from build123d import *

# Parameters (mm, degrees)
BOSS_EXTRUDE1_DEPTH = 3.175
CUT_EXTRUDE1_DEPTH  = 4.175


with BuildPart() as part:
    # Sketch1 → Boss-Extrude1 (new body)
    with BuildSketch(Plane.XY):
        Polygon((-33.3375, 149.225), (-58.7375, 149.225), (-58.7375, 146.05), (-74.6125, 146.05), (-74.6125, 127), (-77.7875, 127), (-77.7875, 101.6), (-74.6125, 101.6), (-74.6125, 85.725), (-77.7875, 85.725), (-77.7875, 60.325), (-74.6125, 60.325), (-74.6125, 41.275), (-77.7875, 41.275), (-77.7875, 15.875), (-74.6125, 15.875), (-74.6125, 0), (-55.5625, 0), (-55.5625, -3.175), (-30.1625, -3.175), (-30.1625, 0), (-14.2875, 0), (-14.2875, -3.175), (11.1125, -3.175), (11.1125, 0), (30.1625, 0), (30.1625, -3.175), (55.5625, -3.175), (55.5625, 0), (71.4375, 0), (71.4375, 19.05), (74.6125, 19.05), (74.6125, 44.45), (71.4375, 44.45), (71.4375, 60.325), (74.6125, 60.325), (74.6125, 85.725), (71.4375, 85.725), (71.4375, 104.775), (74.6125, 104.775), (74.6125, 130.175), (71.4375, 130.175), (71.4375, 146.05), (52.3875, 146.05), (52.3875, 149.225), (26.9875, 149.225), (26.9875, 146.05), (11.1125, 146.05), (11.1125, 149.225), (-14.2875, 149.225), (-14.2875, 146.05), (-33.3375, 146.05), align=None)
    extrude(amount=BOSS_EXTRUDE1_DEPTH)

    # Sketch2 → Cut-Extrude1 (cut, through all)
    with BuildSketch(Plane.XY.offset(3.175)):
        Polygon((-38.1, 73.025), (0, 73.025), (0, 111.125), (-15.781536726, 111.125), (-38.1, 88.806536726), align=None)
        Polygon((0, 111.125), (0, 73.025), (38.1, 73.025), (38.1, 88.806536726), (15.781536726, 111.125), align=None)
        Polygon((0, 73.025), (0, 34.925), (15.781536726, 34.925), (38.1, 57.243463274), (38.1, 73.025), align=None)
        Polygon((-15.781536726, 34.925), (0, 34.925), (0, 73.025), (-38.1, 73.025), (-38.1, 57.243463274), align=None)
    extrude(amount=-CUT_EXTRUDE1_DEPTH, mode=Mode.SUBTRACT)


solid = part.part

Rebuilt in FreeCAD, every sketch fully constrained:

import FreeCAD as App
import Part
import Sketcher

V = App.Vector
Q = App.Units.Quantity

doc = App.newDocument("Part")
body = doc.addObject("PartDesign::Body", "Body")

# Sketch on XY plane
sketch1 = body.newObject("Sketcher::SketchObject", "Sketch")
sketch1.AttachmentSupport = (doc.getObject("XY_Plane"), [""])
sketch1.MapMode = "FlatFace"
sketch1.addGeometry(Part.LineSegment(V(-33.3, 149.2, 0), V(-58.7, 149.2, 0)), False)
sketch1.addGeometry(Part.LineSegment(V(-58.7, 149.2, 0), V(-58.7, 146.1, 0)), False)
sketch1.addGeometry(Part.LineSegment(V(-58.7, 146.1, 0), V(-74.6, 146.1, 0)), False)
sketch1.addGeometry(Part.LineSegment(V(-74.6, 146.1, 0), V(-74.6, 127, 0)), False)
sketch1.addGeometry(Part.LineSegment(V(-74.6, 127, 0), V(-77.8, 127, 0)), False)
sketch1.addGeometry(Part.LineSegment(V(-77.8, 127, 0), V(-77.8, 101.6, 0)), False)
sketch1.addGeometry(Part.LineSegment(V(-77.8, 101.6, 0), V(-74.6, 101.6, 0)), False)
sketch1.addGeometry(Part.LineSegment(V(-74.6, 101.6, 0), V(-74.6, 85.7, 0)), False)
sketch1.addGeometry(Part.LineSegment(V(-74.6, 85.7, 0), V(-77.8, 85.7, 0)), False)
sketch1.addGeometry(Part.LineSegment(V(-77.8, 85.7, 0), V(-77.8, 60.3, 0)), False)
sketch1.addGeometry(Part.LineSegment(V(-77.8, 60.3, 0), V(-74.6, 60.3, 0)), False)
sketch1.addGeometry(Part.LineSegment(V(-74.6, 60.3, 0), V(-74.6, 41.3, 0)), False)
sketch1.addGeometry(Part.LineSegment(V(-74.6, 41.3, 0), V(-77.8, 41.3, 0)), False)
sketch1.addGeometry(Part.LineSegment(V(-77.8, 41.3, 0), V(-77.8, 15.9, 0)), False)
sketch1.addGeometry(Part.LineSegment(V(-77.8, 15.9, 0), V(-74.6, 15.9, 0)), False)
sketch1.addGeometry(Part.LineSegment(V(-74.6, 15.9, 0), V(-74.6, 0, 0)), False)
sketch1.addGeometry(Part.LineSegment(V(-74.6, 0, 0), V(-55.6, 0, 0)), False)
sketch1.addGeometry(Part.LineSegment(V(-55.6, 0, 0), V(-55.6, -3.2, 0)), False)
sketch1.addGeometry(Part.LineSegment(V(-55.6, -3.2, 0), V(-30.2, -3.2, 0)), False)
sketch1.addGeometry(Part.LineSegment(V(-30.2, -3.2, 0), V(-30.2, 0, 0)), False)
sketch1.addGeometry(Part.LineSegment(V(-30.2, 0, 0), V(-14.3, 0, 0)), False)
sketch1.addGeometry(Part.LineSegment(V(-14.3, 0, 0), V(-14.3, -3.2, 0)), False)
sketch1.addGeometry(Part.LineSegment(V(-14.3, -3.2, 0), V(11.1, -3.2, 0)), False)
sketch1.addGeometry(Part.LineSegment(V(11.1, -3.2, 0), V(11.1, 0, 0)), False)
sketch1.addGeometry(Part.LineSegment(V(11.1, 0, 0), V(30.2, 0, 0)), False)
sketch1.addGeometry(Part.LineSegment(V(30.2, 0, 0), V(30.2, -3.2, 0)), False)
sketch1.addGeometry(Part.LineSegment(V(30.2, -3.2, 0), V(55.6, -3.2, 0)), False)
sketch1.addGeometry(Part.LineSegment(V(55.6, -3.2, 0), V(55.6, 0, 0)), False)
sketch1.addGeometry(Part.LineSegment(V(55.6, 0, 0), V(71.4, 0, 0)), False)
sketch1.addGeometry(Part.LineSegment(V(71.4, 0, 0), V(71.4, 19.1, 0)), False)
sketch1.addGeometry(Part.LineSegment(V(71.4, 19.1, 0), V(74.6, 19.1, 0)), False)
sketch1.addGeometry(Part.LineSegment(V(74.6, 19.1, 0), V(74.6, 44.5, 0)), False)
sketch1.addGeometry(Part.LineSegment(V(74.6, 44.5, 0), V(71.4, 44.5, 0)), False)
sketch1.addGeometry(Part.LineSegment(V(71.4, 44.5, 0), V(71.4, 60.3, 0)), False)
sketch1.addGeometry(Part.LineSegment(V(71.4, 60.3, 0), V(74.6, 60.3, 0)), False)
sketch1.addGeometry(Part.LineSegment(V(74.6, 60.3, 0), V(74.6, 85.7, 0)), False)
sketch1.addGeometry(Part.LineSegment(V(74.6, 85.7, 0), V(71.4, 85.7, 0)), False)
sketch1.addGeometry(Part.LineSegment(V(71.4, 85.7, 0), V(71.4, 104.8, 0)), False)
sketch1.addGeometry(Part.LineSegment(V(71.4, 104.8, 0), V(74.6, 104.8, 0)), False)
sketch1.addGeometry(Part.LineSegment(V(74.6, 104.8, 0), V(74.6, 130.2, 0)), False)
sketch1.addGeometry(Part.LineSegment(V(74.6, 130.2, 0), V(71.4, 130.2, 0)), False)
sketch1.addGeometry(Part.LineSegment(V(71.4, 130.2, 0), V(71.4, 146.1, 0)), False)
sketch1.addGeometry(Part.LineSegment(V(71.4, 146.1, 0), V(52.4, 146.1, 0)), False)
sketch1.addGeometry(Part.LineSegment(V(52.4, 146.1, 0), V(52.4, 149.2, 0)), False)
sketch1.addGeometry(Part.LineSegment(V(52.4, 149.2, 0), V(27, 149.2, 0)), False)
sketch1.addGeometry(Part.LineSegment(V(27, 149.2, 0), V(27, 146.1, 0)), False)
sketch1.addGeometry(Part.LineSegment(V(27, 146.1, 0), V(11.1, 146.1, 0)), False)
sketch1.addGeometry(Part.LineSegment(V(11.1, 146.1, 0), V(11.1, 149.2, 0)), False)
sketch1.addGeometry(Part.LineSegment(V(11.1, 149.2, 0), V(-14.3, 149.2, 0)), False)
sketch1.addGeometry(Part.LineSegment(V(-14.3, 149.2, 0), V(-14.3, 146.1, 0)), False)
sketch1.addGeometry(Part.LineSegment(V(-14.3, 146.1, 0), V(-33.3, 146.1, 0)), False)
sketch1.addGeometry(Part.LineSegment(V(-33.3, 146.1, 0), V(-33.3, 149.2, 0)), False)
sketch1.addConstraint(Sketcher.Constraint("Coincident", 0, 2, 1, 1))
sketch1.addConstraint(Sketcher.Constraint("Coincident", 1, 2, 2, 1))
sketch1.addConstraint(Sketcher.Constraint("Coincident", 2, 2, 3, 1))
sketch1.addConstraint(Sketcher.Constraint("Coincident", 3, 2, 4, 1))
sketch1.addConstraint(Sketcher.Constraint("Coincident", 4, 2, 5, 1))
sketch1.addConstraint(Sketcher.Constraint("Coincident", 5, 2, 6, 1))
sketch1.addConstraint(Sketcher.Constraint("Coincident", 6, 2, 7, 1))
sketch1.addConstraint(Sketcher.Constraint("Coincident", 7, 2, 8, 1))
sketch1.addConstraint(Sketcher.Constraint("Coincident", 8, 2, 9, 1))
sketch1.addConstraint(Sketcher.Constraint("Coincident", 9, 2, 10, 1))
sketch1.addConstraint(Sketcher.Constraint("Coincident", 10, 2, 11, 1))
sketch1.addConstraint(Sketcher.Constraint("Coincident", 11, 2, 12, 1))
sketch1.addConstraint(Sketcher.Constraint("Coincident", 12, 2, 13, 1))
sketch1.addConstraint(Sketcher.Constraint("Coincident", 13, 2, 14, 1))
sketch1.addConstraint(Sketcher.Constraint("Coincident", 14, 2, 15, 1))
sketch1.addConstraint(Sketcher.Constraint("Coincident", 15, 2, 16, 1))
sketch1.addConstraint(Sketcher.Constraint("Coincident", 16, 2, 17, 1))
sketch1.addConstraint(Sketcher.Constraint("Coincident", 17, 2, 18, 1))
sketch1.addConstraint(Sketcher.Constraint("Coincident", 18, 2, 19, 1))
sketch1.addConstraint(Sketcher.Constraint("Coincident", 19, 2, 20, 1))
sketch1.addConstraint(Sketcher.Constraint("Coincident", 20, 2, 21, 1))
sketch1.addConstraint(Sketcher.Constraint("Coincident", 21, 2, 22, 1))
sketch1.addConstraint(Sketcher.Constraint("Coincident", 22, 2, 23, 1))
sketch1.addConstraint(Sketcher.Constraint("Coincident", 23, 2, 24, 1))
sketch1.addConstraint(Sketcher.Constraint("Coincident", 24, 2, 25, 1))
sketch1.addConstraint(Sketcher.Constraint("Coincident", 25, 2, 26, 1))
sketch1.addConstraint(Sketcher.Constraint("Coincident", 26, 2, 27, 1))
sketch1.addConstraint(Sketcher.Constraint("Coincident", 27, 2, 28, 1))
sketch1.addConstraint(Sketcher.Constraint("Coincident", 28, 2, 29, 1))
sketch1.addConstraint(Sketcher.Constraint("Coincident", 29, 2, 30, 1))
sketch1.addConstraint(Sketcher.Constraint("Coincident", 30, 2, 31, 1))
sketch1.addConstraint(Sketcher.Constraint("Coincident", 31, 2, 32, 1))
sketch1.addConstraint(Sketcher.Constraint("Coincident", 32, 2, 33, 1))
sketch1.addConstraint(Sketcher.Constraint("Coincident", 33, 2, 34, 1))
sketch1.addConstraint(Sketcher.Constraint("Coincident", 34, 2, 35, 1))
sketch1.addConstraint(Sketcher.Constraint("Coincident", 35, 2, 36, 1))
sketch1.addConstraint(Sketcher.Constraint("Coincident", 36, 2, 37, 1))
sketch1.addConstraint(Sketcher.Constraint("Coincident", 37, 2, 38, 1))
sketch1.addConstraint(Sketcher.Constraint("Coincident", 38, 2, 39, 1))
sketch1.addConstraint(Sketcher.Constraint("Coincident", 39, 2, 40, 1))
sketch1.addConstraint(Sketcher.Constraint("Coincident", 40, 2, 41, 1))
sketch1.addConstraint(Sketcher.Constraint("Coincident", 41, 2, 42, 1))
sketch1.addConstraint(Sketcher.Constraint("Coincident", 42, 2, 43, 1))
sketch1.addConstraint(Sketcher.Constraint("Coincident", 43, 2, 44, 1))
sketch1.addConstraint(Sketcher.Constraint("Coincident", 44, 2, 45, 1))
sketch1.addConstraint(Sketcher.Constraint("Coincident", 45, 2, 46, 1))
sketch1.addConstraint(Sketcher.Constraint("Coincident", 46, 2, 47, 1))
sketch1.addConstraint(Sketcher.Constraint("Coincident", 47, 2, 48, 1))
sketch1.addConstraint(Sketcher.Constraint("Coincident", 48, 2, 49, 1))
sketch1.addConstraint(Sketcher.Constraint("Coincident", 49, 2, 50, 1))
sketch1.addConstraint(Sketcher.Constraint("Coincident", 50, 2, 51, 1))
sketch1.addConstraint(Sketcher.Constraint("Coincident", 51, 2, 0, 1))
sketch1.addConstraint(Sketcher.Constraint("Horizontal", 0))
sketch1.addConstraint(Sketcher.Constraint("Vertical", 1))
sketch1.addConstraint(Sketcher.Constraint("Horizontal", 2))
sketch1.addConstraint(Sketcher.Constraint("Vertical", 3))
sketch1.addConstraint(Sketcher.Constraint("Horizontal", 4))
sketch1.addConstraint(Sketcher.Constraint("Vertical", 5))
sketch1.addConstraint(Sketcher.Constraint("Horizontal", 6))
sketch1.addConstraint(Sketcher.Constraint("Vertical", 7))
sketch1.addConstraint(Sketcher.Constraint("Horizontal", 8))
sketch1.addConstraint(Sketcher.Constraint("Vertical", 9))
sketch1.addConstraint(Sketcher.Constraint("Horizontal", 10))
sketch1.addConstraint(Sketcher.Constraint("Vertical", 11))
sketch1.addConstraint(Sketcher.Constraint("Horizontal", 12))
sketch1.addConstraint(Sketcher.Constraint("Vertical", 13))
sketch1.addConstraint(Sketcher.Constraint("Horizontal", 14))
sketch1.addConstraint(Sketcher.Constraint("Vertical", 15))
sketch1.addConstraint(Sketcher.Constraint("Horizontal", 16))
sketch1.addConstraint(Sketcher.Constraint("Vertical", 17))
sketch1.addConstraint(Sketcher.Constraint("Horizontal", 18))
sketch1.addConstraint(Sketcher.Constraint("Vertical", 19))
sketch1.addConstraint(Sketcher.Constraint("Horizontal", 20))
sketch1.addConstraint(Sketcher.Constraint("Vertical", 21))
sketch1.addConstraint(Sketcher.Constraint("Horizontal", 22))
sketch1.addConstraint(Sketcher.Constraint("Vertical", 23))
sketch1.addConstraint(Sketcher.Constraint("Horizontal", 24))
sketch1.addConstraint(Sketcher.Constraint("Vertical", 25))
sketch1.addConstraint(Sketcher.Constraint("Horizontal", 26))
sketch1.addConstraint(Sketcher.Constraint("Vertical", 27))
sketch1.addConstraint(Sketcher.Constraint("Horizontal", 28))
sketch1.addConstraint(Sketcher.Constraint("Vertical", 29))
sketch1.addConstraint(Sketcher.Constraint("Horizontal", 30))
sketch1.addConstraint(Sketcher.Constraint("Vertical", 31))
sketch1.addConstraint(Sketcher.Constraint("Horizontal", 32))
sketch1.addConstraint(Sketcher.Constraint("Vertical", 33))
sketch1.addConstraint(Sketcher.Constraint("Horizontal", 34))
sketch1.addConstraint(Sketcher.Constraint("Vertical", 35))
sketch1.addConstraint(Sketcher.Constraint("Horizontal", 36))
sketch1.addConstraint(Sketcher.Constraint("Vertical", 37))
sketch1.addConstraint(Sketcher.Constraint("Horizontal", 38))
sketch1.addConstraint(Sketcher.Constraint("Vertical", 39))
sketch1.addConstraint(Sketcher.Constraint("Horizontal", 40))
sketch1.addConstraint(Sketcher.Constraint("Vertical", 41))
sketch1.addConstraint(Sketcher.Constraint("Horizontal", 42))
sketch1.addConstraint(Sketcher.Constraint("Vertical", 43))
sketch1.addConstraint(Sketcher.Constraint("Horizontal", 44))
sketch1.addConstraint(Sketcher.Constraint("Vertical", 45))
sketch1.addConstraint(Sketcher.Constraint("Horizontal", 46))
sketch1.addConstraint(Sketcher.Constraint("Vertical", 47))
sketch1.addConstraint(Sketcher.Constraint("Horizontal", 48))
sketch1.addConstraint(Sketcher.Constraint("Vertical", 49))
sketch1.addConstraint(Sketcher.Constraint("Horizontal", 50))
sketch1.addConstraint(Sketcher.Constraint("Vertical", 51))
sketch1.addConstraint(Sketcher.Constraint("Symmetric", 19, 2, 24, 2, -1, 1))
sketch1.addConstraint(Sketcher.Constraint("Symmetric", 16, 2, 27, 2, -1, 1))
sketch1.addConstraint(Sketcher.Constraint("Symmetric", 10, 2, 34, 2, -2))
sketch1.addConstraint(Sketcher.Constraint("Symmetric", 7, 2, 35, 2, -2))
sketch1.addConstraint(Sketcher.Constraint("PointOnObject", 15, 2, -1))
sketch1.addConstraint(Sketcher.Constraint("PointOnObject", 19, 2, -1))
sketch1.addConstraint(Sketcher.Constraint("Horizontal", 18, 2, 21, 2))
sketch1.addConstraint(Sketcher.Constraint("Horizontal", 22, 2, 25, 2))
sketch1.addConstraint(Sketcher.Constraint("Horizontal", 2, 2, 41, 2))
sketch1.addConstraint(Sketcher.Constraint("Horizontal", 0, 2, 43, 2))
sketch1.addConstraint(Sketcher.Constraint("Horizontal", 42, 2, 45, 2))
sketch1.addConstraint(Sketcher.Constraint("Horizontal", 44, 2, 47, 2))
sketch1.addConstraint(Sketcher.Constraint("Horizontal", 46, 2, 49, 2))
sketch1.addConstraint(Sketcher.Constraint("Vertical", 3, 2, 6, 2))
sketch1.addConstraint(Sketcher.Constraint("Vertical", 5, 2, 8, 2))
sketch1.addConstraint(Sketcher.Constraint("Vertical", 9, 2, 12, 2))
sketch1.addConstraint(Sketcher.Constraint("Vertical", 11, 2, 14, 2))
sketch1.addConstraint(Sketcher.Constraint("Vertical", 29, 2, 32, 2))
sketch1.addConstraint(Sketcher.Constraint("Vertical", 31, 2, 34, 2))
sketch1.addConstraint(Sketcher.Constraint("Vertical", 33, 2, 36, 2))
sketch1.addConstraint(Sketcher.Constraint("Vertical", 35, 2, 38, 2))
sketch1.addConstraint(Sketcher.Constraint("Vertical", 37, 2, 40, 2))
sketch1.addConstraint(Sketcher.Constraint("Vertical", 23, 2, 46, 2))
sketch1.addConstraint(Sketcher.Constraint("Vertical", 21, 2, 48, 2))
sketch1.addConstraint(Sketcher.Constraint("Equal", 0, 18))
sketch1.addConstraint(Sketcher.Constraint("Equal", 2, 20))
sketch1.addConstraint(Sketcher.Constraint("Equal", 18, 22))
sketch1.addConstraint(Sketcher.Constraint("Equal", 16, 24))
sketch1.addConstraint(Sketcher.Constraint("Equal", 20, 28))
sketch1.addConstraint(Sketcher.Constraint("Equal", 14, 30))
sketch1.addConstraint(Sketcher.Constraint("Equal", 24, 42))
sketch1.addConstraint(Sketcher.Constraint("Equal", 26, 44))
sketch1.addConstraint(Sketcher.Constraint("Equal", 40, 1))
sketch1.addConstraint(Sketcher.Constraint("Equal", 50, 3))
sketch1.addConstraint(Sketcher.Constraint("Equal", 48, 5))
sketch1.addConstraint(Sketcher.Constraint("Equal", 46, 7))
sketch1.addConstraint(Sketcher.Constraint("Equal", 5, 9))
sketch1.addConstraint(Sketcher.Constraint("Equal", 3, 11))
sketch1.addConstraint(Sketcher.Constraint("Equal", 9, 13))
sketch1.addConstraint(Sketcher.Constraint("Equal", 7, 15))
sketch1.addConstraint(Sketcher.Constraint("Equal", 1, 17))
sketch1.addConstraint(Sketcher.Constraint("Equal", 11, 29))
sketch1.addConstraint(Sketcher.Constraint("Equal", 13, 31))
sketch1.addConstraint(Sketcher.Constraint("Equal", 29, 37))
sketch1.addConstraint(Sketcher.Constraint("Equal", 35, 39))
sketch1.addConstraint(Sketcher.Constraint("DistanceX", 0, 2, 0, 1, Q("1 in")))
sketch1.addConstraint(Sketcher.Constraint("DistanceY", -1, 1, 3, 2, Q("5 in")))
sketch1.addConstraint(Sketcher.Constraint("DistanceX", 16, 1, 16, 2, Q("0.75 in")))
pad1 = body.newObject("PartDesign::Pad", "Pad")
pad1.Profile = sketch1
pad1.Length = Q("0.125 in")

# Sketch on XY plane
sketch2 = body.newObject("Sketcher::SketchObject", "Sketch001")
sketch2.AttachmentSupport = (doc.getObject("XY_Plane"), [""])
sketch2.MapMode = "FlatFace"
sketch2.AttachmentOffset = App.Placement(V(0, 0, 0.125 * 25.4), App.Rotation())
sketch2.addGeometry(Part.LineSegment(V(16, 35, 0), V(38, 57, 0)), False)
sketch2.addGeometry(Part.LineSegment(V(38, 57, 0), V(38, 89, 0)), False)
sketch2.addGeometry(Part.LineSegment(V(38, 89, 0), V(16, 111, 0)), False)
sketch2.addGeometry(Part.LineSegment(V(16, 111, 0), V(-16, 111, 0)), False)
sketch2.addGeometry(Part.LineSegment(V(-16, 111, 0), V(-38, 89, 0)), False)
sketch2.addGeometry(Part.LineSegment(V(-38, 89, 0), V(-38, 57, 0)), False)
sketch2.addGeometry(Part.LineSegment(V(-38, 57, 0), V(-16, 35, 0)), False)
sketch2.addGeometry(Part.LineSegment(V(-16, 35, 0), V(16, 35, 0)), False)
sketch2.addConstraint(Sketcher.Constraint("Coincident", 0, 2, 1, 1))
sketch2.addConstraint(Sketcher.Constraint("Coincident", 1, 2, 2, 1))
sketch2.addConstraint(Sketcher.Constraint("Coincident", 2, 2, 3, 1))
sketch2.addConstraint(Sketcher.Constraint("Coincident", 3, 2, 4, 1))
sketch2.addConstraint(Sketcher.Constraint("Coincident", 4, 2, 5, 1))
sketch2.addConstraint(Sketcher.Constraint("Coincident", 5, 2, 6, 1))
sketch2.addConstraint(Sketcher.Constraint("Coincident", 6, 2, 7, 1))
sketch2.addConstraint(Sketcher.Constraint("Coincident", 7, 2, 0, 1))
sketch2.addConstraint(Sketcher.Constraint("Vertical", 1))
sketch2.addConstraint(Sketcher.Constraint("Horizontal", 3))
sketch2.addConstraint(Sketcher.Constraint("Vertical", 5))
sketch2.addConstraint(Sketcher.Constraint("Horizontal", 7))
sketch2.addConstraint(Sketcher.Constraint("Symmetric", 1, 2, 4, 2, -2))
sketch2.addConstraint(Sketcher.Constraint("Perpendicular", 0, 2))
sketch2.addConstraint(Sketcher.Constraint("Perpendicular", 2, 4))
sketch2.addConstraint(Sketcher.Constraint("Perpendicular", 4, 6))
sketch2.addConstraint(Sketcher.Constraint("Horizontal", 0, 2, 5, 2))
sketch2.addConstraint(Sketcher.Constraint("Vertical", 3, 2, 6, 2))
sketch2.addConstraint(Sketcher.Constraint("Vertical", 2, 2, 7, 2))
sketch2.addConstraint(Sketcher.Constraint("Equal", 7, 1))
sketch2.addConstraint(Sketcher.Constraint("DistanceX", 4, 2, 1, 2, Q("3 in")))
sketch2.addConstraint(Sketcher.Constraint("DistanceY", -1, 1, 2, 2, Q("4.375 in")))
sketch2.addConstraint(Sketcher.Constraint("DistanceX", 3, 2, 3, 1, Q("31.563073 mm")))
pocket1 = body.newObject("PartDesign::Pocket", "Pocket")
pocket1.Profile = sketch2
pocket1.Type = "ThroughAll"

doc.recompute()
